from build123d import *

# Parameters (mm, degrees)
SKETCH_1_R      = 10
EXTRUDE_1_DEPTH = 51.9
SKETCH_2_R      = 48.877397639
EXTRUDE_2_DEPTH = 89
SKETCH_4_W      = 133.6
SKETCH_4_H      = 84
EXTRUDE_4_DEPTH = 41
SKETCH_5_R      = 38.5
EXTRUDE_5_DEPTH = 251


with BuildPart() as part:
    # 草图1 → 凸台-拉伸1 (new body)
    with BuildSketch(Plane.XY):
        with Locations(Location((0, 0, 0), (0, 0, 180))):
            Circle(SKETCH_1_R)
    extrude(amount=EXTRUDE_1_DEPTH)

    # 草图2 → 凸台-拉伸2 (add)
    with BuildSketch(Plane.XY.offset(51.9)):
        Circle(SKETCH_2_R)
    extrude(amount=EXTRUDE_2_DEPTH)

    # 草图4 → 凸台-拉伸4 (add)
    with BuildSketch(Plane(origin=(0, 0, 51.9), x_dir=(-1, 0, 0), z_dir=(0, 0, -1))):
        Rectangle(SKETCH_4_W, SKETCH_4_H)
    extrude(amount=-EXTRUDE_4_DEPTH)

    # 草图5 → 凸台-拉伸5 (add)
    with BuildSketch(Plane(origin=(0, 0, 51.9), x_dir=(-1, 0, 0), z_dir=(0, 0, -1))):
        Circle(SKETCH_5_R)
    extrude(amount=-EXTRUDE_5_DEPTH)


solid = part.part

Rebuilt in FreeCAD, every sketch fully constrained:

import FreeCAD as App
import Part
import Sketcher

V = App.Vector

doc = App.newDocument("Part")
body = doc.addObject("PartDesign::Body", "Body")

# Sketch on XY plane
sketch1 = body.newObject("Sketcher::SketchObject", "Sketch")
sketch1.AttachmentSupport = (doc.getObject("XY_Plane"), [""])
sketch1.MapMode = "FlatFace"
sketch1.addGeometry(Part.Circle(V(0, 0, 0), V(0, 0, 1), 10), False)
sketch1.addConstraint([
    Sketcher.Constraint("Coincident", 0, 3, -1, 1),
    Sketcher.Constraint("Diameter", 0, 20.0),
])
pad1 = body.newObject("PartDesign::Pad", "Pad")
pad1.Profile = sketch1
pad1.Length = 51.9

# Sketch on XY plane
sketch2 = body.newObject("Sketcher::SketchObject", "Sketch001")
sketch2.AttachmentSupport = (doc.getObject("XY_Plane"), [""])
sketch2.MapMode = "FlatFace"
sketch2.AttachmentOffset = App.Placement(V(0, 0, 51.9), App.Rotation())
sketch2.addGeometry(Part.Circle(V(0, 0, 0), V(0, 0, 1), 49), False)
sketch2.addConstraint([
    Sketcher.Constraint("Coincident", 0, 3, -1, 1),
    Sketcher.Constraint("Diameter", 0, 97.754795),
])
pad2 = body.newObject("PartDesign::Pad", "Pad001")
pad2.Profile = sketch2
pad2.Length = 89

# Sketch on XY plane
sketch3 = body.newObject("Sketcher::SketchObject", "Sketch002")
sketch3.AttachmentSupport = (doc.getObject("XY_Plane"), [""])
sketch3.MapMode = "FlatFace"
sketch3.AttachmentOffset = App.Placement(V(0, 0, 51.9), App.Rotation())
sketch3.addGeometry([
    Part.LineSegment(V(67, 42, 0), V(67, -42, 0)),
    Part.LineSegment(V(67, -42, 0), V(-67, -42, 0)),
    Part.LineSegment(V(-67, -42, 0), V(-67, 42, 0)),
    Part.LineSegment(V(-67, 42, 0), V(67, 42, 0)),
], False)
sketch3.addConstraint([
    Sketcher.Constraint("Coincident", 0, 2, 1, 1),
    Sketcher.Constraint("Coincident", 1, 2, 2, 1),
    Sketcher.Constraint("Coincident", 2, 2, 3, 1),
    Sketcher.Constraint("Coincident", 3, 2, 0, 1),
    Sketcher.Constraint("Vertical", 0),
    Sketcher.Constraint("Horizontal", 1),
    Sketcher.Constraint("Vertical", 2),
    Sketcher.Constraint("Horizontal", 3),
    Sketcher.Constraint("Symmetric", 0, 2, 2, 2, -1, 1),
    Sketcher.Constraint("DistanceY", 0, 2, 0, 1, 84.0),
    Sketcher.Constraint("DistanceX", 1, 2, 1, 1, 133.6),
])
pad3 = body.newObject("PartDesign::Pad", "Pad002")
pad3.Profile = sketch3
pad3.Length = 41

# Sketch on XY plane
sketch4 = body.newObject("Sketcher::SketchObject", "Sketch003")
sketch4.AttachmentSupport = (doc.getObject("XY_Plane"), [""])
sketch4.MapMode = "FlatFace"
sketch4.AttachmentOffset = App.Placement(V(0, 0, 51.9), App.Rotation())
sketch4.addGeometry(Part.Circle(V(0, 0, 0), V(0, 0, 1), 38), False)
sketch4.addConstraint([
    Sketcher.Constraint("Coincident", 0, 3, -1, 1),
    Sketcher.Constraint("Diameter", 0, 77.0),
])
pad4 = body.newObject("PartDesign::Pad", "Pad003")
pad4.Profile = sketch4
pad4.Length = 251

doc.recompute()
